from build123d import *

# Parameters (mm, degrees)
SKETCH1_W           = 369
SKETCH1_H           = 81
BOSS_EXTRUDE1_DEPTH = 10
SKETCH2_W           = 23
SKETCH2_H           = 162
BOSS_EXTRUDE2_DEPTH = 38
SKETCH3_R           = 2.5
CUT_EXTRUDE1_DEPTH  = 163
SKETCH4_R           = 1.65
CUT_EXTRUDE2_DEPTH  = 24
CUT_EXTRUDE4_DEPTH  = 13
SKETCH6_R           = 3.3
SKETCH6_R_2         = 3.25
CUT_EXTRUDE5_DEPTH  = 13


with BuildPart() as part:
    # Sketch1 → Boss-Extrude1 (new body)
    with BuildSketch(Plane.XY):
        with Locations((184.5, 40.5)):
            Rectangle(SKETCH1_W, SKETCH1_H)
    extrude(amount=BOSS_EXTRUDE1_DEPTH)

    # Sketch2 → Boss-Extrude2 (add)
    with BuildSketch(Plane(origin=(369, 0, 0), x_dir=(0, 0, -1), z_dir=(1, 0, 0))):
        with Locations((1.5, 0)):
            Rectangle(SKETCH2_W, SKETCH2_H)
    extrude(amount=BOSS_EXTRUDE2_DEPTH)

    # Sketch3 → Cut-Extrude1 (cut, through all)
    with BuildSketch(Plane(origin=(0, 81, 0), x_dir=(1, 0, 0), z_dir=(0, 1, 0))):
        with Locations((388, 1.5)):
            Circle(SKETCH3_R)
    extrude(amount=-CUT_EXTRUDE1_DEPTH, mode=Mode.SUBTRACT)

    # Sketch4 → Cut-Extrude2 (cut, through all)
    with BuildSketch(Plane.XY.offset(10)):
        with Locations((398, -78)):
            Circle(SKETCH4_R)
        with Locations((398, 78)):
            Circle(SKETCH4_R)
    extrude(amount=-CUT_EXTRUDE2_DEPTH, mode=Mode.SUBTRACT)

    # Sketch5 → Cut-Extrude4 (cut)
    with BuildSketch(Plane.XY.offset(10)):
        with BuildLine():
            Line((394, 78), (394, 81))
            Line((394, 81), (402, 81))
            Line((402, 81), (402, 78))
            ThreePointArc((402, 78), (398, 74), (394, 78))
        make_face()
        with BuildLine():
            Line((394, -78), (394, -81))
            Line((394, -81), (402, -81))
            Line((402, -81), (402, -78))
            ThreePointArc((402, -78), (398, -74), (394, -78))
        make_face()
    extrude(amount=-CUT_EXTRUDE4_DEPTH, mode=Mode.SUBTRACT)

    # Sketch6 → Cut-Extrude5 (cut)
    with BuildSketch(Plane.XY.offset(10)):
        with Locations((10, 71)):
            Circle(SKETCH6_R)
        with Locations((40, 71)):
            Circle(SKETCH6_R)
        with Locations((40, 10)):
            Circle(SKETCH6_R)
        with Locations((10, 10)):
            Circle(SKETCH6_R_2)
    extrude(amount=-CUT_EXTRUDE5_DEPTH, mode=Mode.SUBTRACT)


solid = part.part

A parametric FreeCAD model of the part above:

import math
import FreeCAD as App
import Part
import Sketcher

doc = App.newDocument("Part")
body = doc.addObject("PartDesign::Body", "Body")

# Sketch on XY plane
sketch1 = body.newObject("Sketcher::SketchObject", "Sketch")
sketch1.AttachmentSupport = (doc.getObject("XY_Plane"), [""])
sketch1.MapMode = "FlatFace"
sketch1.addGeometry([
    Part.LineSegment(App.Vector(0, 81, 0), App.Vector(0, 0, 0)),
    Part.LineSegment(App.Vector(0, 0, 0), App.Vector(369, 0, 0)),
    Part.LineSegment(App.Vector(369, 0, 0), App.Vector(369, 81, 0)),
    Part.LineSegment(App.Vector(369, 81, 0), App.Vector(0, 81, 0)),
], False)
sketch1.addConstraint([
    Sketcher.Constraint("Coincident", 0, 2, 1, 1),
    Sketcher.Constraint("Coincident", 1, 2, 2, 1),
    Sketcher.Constraint("Coincident", 2, 2, 3, 1),
    Sketcher.Constraint("Coincident", 3, 2, 0, 1),
    Sketcher.Constraint("Vertical", 0),
    Sketcher.Constraint("Horizontal", 1),
    Sketcher.Constraint("Vertical", 2),
    Sketcher.Constraint("Horizontal", 3),
    Sketcher.Constraint("Coincident", 0, 2, -1, 1),
    Sketcher.Constraint("DistanceX", 1, 1, 1, 2, 369.0),
    Sketcher.Constraint("DistanceY", 0, 2, 0, 1, 81.0),
])
pad1 = body.newObject("PartDesign::Pad", "Pad")
pad1.Profile = sketch1
pad1.Length = 10

# Sketch on YZ plane
sketch2 = body.newObject("Sketcher::SketchObject", "Sketch001")
sketch2.AttachmentSupport = (doc.getObject("YZ_Plane"), [""])
sketch2.MapMode = "FlatFace"
sketch2.AttachmentOffset = App.Placement(App.Vector(0, 0, 369), App.Rotation())
sketch2.addGeometry([
    Part.LineSegment(App.Vector(81, 10, 0), App.Vector(-81, 10, 0)),
    Part.LineSegment(App.Vector(-81, 10, 0), App.Vector(-81, -13, 0)),
    Part.LineSegment(App.Vector(-81, -13, 0), App.Vector(81, -13, 0)),
    Part.LineSegment(App.Vector(81, -13, 0), App.Vector(81, 10, 0)),
], False)
sketch2.addConstraint([
    Sketcher.Constraint("Coincident", 0, 2, 1, 1),
    Sketcher.Constraint("Coincident", 1, 2, 2, 1),
    Sketcher.Constraint("Coincident", 2, 2, 3, 1),
    Sketcher.Constraint("Coincident", 3, 2, 0, 1),
    Sketcher.Constraint("Horizontal", 0),
    Sketcher.Constraint("Vertical", 1),
    Sketcher.Constraint("Horizontal", 2),
    Sketcher.Constraint("Vertical", 3),
    Sketcher.Constraint("DistanceX", 0, 2, 0, 1, 162.0),
    Sketcher.Constraint("DistanceY", 1, 2, 1, 1, 23.0),
    Sketcher.Constraint("DistanceX", 0, 2, -1, 1, 81.0),
    Sketcher.Constraint("DistanceY", -1, 1, 0, 2, 10.0),
])
pad2 = body.newObject("PartDesign::Pad", "Pad001")
pad2.Profile = sketch2
pad2.Length = 38

# Sketch on XZ plane
sketch3 = body.newObject("Sketcher::SketchObject", "Sketch002")
sketch3.AttachmentSupport = (doc.getObject("XZ_Plane"), [""])
sketch3.MapMode = "FlatFace"
sketch3.AttachmentOffset = App.Placement(App.Vector(0, 0, -81), App.Rotation())
sketch3.addGeometry(Part.Circle(App.Vector(388, -1.5, 0), App.Vector(0, 0, 1), 2.5), False)
sketch3.addConstraint([
    Sketcher.Constraint("Diameter", 0, 5.0),
    Sketcher.Constraint("DistanceX", -1, 1, 0, 3, 388.0),
    Sketcher.Constraint("DistanceY", 0, 3, -1, 1, 1.5),
])
pocket1 = body.newObject("PartDesign::Pocket", "Pocket")
pocket1.Profile = sketch3
pocket1.Type = "ThroughAll"
pocket1.Reversed = True

# Sketch on XY plane
sketch4 = body.newObject("Sketcher::SketchObject", "Sketch003")
sketch4.AttachmentSupport = (doc.getObject("XY_Plane"), [""])
sketch4.MapMode = "FlatFace"
sketch4.AttachmentOffset = App.Placement(App.Vector(0, 0, 10), App.Rotation())
sketch4.addGeometry([
    Part.Circle(App.Vector(398, -78, 0), App.Vector(0, 0, 1), 1.6),
    Part.Circle(App.Vector(398, 78, 0), App.Vector(0, 0, 1), 1.6),
], False)
sketch4.addConstraint([
    Sketcher.Constraint("Equal", 0, 1),
    Sketcher.Constraint("Symmetric", 0, 3, 1, 3, -1),
    Sketcher.Constraint("Diameter", 0, 3.3),
    Sketcher.Constraint("DistanceX", -1, 1, 0, 3, 398.0),
    Sketcher.Constraint("DistanceY", 0, 3, -1, 1, 78.0),
])
pocket2 = body.newObject("PartDesign::Pocket", "Pocket001")
pocket2.Profile = sketch4
pocket2.Type = "ThroughAll"

# Sketch on XY plane
sketch5 = body.newObject("Sketcher::SketchObject", "Sketch004")
sketch5.AttachmentSupport = (doc.getObject("XY_Plane"), [""])
sketch5.MapMode = "FlatFace"
sketch5.AttachmentOffset = App.Placement(App.Vector(0, 0, 10), App.Rotation())
sketch5.addGeometry([
    Part.LineSegment(App.Vector(394, 81, 0), App.Vector(394, 78, 0)),  # 0
    Part.ArcOfCircle(Part.Circle(App.Vector(398, 78, 0), App.Vector(0, 0, 1), 4), math.radians(180), math.radians(360)),  # 1
    Part.LineSegment(App.Vector(402, 78, 0), App.Vector(402, 81, 0)),  # 2
    Part.LineSegment(App.Vector(402, 81, 0), App.Vector(394, 81, 0)),  # 3
    Part.LineSegment(App.Vector(394, -78, 0), App.Vector(394, -81, 0)),  # 4
    Part.LineSegment(App.Vector(394, -81, 0), App.Vector(402, -81, 0)),  # 5
    Part.LineSegment(App.Vector(402, -81, 0), App.Vector(402, -78, 0)),  # 6
    Part.ArcOfCircle(Part.Circle(App.Vector(398, -78, 0), App.Vector(0, 0, 1), 4), math.radians(0), math.radians(180)),  # 7
], False)
sketch5.addConstraint([
    Sketcher.Constraint("Tangent", 0, 2, 1, 1),
    Sketcher.Constraint("Tangent", 1, 2, 2, 1),
    Sketcher.Constraint("Coincident", 2, 2, 3, 1),
    Sketcher.Constraint("Coincident", 3, 2, 0, 1),
    Sketcher.Constraint("Coincident", 4, 2, 5, 1),
    Sketcher.Constraint("Coincident", 5, 2, 6, 1),
    Sketcher.Constraint("Tangent", 6, 2, 7, 1),
    Sketcher.Constraint("Tangent", 7, 2, 4, 1),
    Sketcher.Constraint("Vertical", 0),
    Sketcher.Constraint("Vertical", 2),
    Sketcher.Constraint("Horizontal", 3),
    Sketcher.Constraint("Vertical", 4),
    Sketcher.Constraint("Horizontal", 5),
    Sketcher.Constraint("Vertical", 6),
    Sketcher.Constraint("Equal", 1, 7),
    Sketcher.Constraint("Symmetric", 1, 3, 7, 3, -1),
    Sketcher.Constraint("Equal", 2, 4),
    Sketcher.Constraint("Radius", 1, 4.0),
    Sketcher.Constraint("DistanceY", 0, 2, 0, 1, 3.0),
    Sketcher.Constraint("DistanceX", -1, 1, 1, 3, 398.0),
    Sketcher.Constraint("DistanceY", -1, 1, 1, 3, 78.0),
])
pocket3 = body.newObject("PartDesign::Pocket", "Pocket002")
pocket3.Profile = sketch5
pocket3.Length = 13

# Sketch on XY plane
sketch6 = body.newObject("Sketcher::SketchObject", "Sketch005")
sketch6.AttachmentSupport = (doc.getObject("XY_Plane"), [""])
sketch6.MapMode = "FlatFace"
sketch6.AttachmentOffset = App.Placement(App.Vector(0, 0, 10), App.Rotation())
sketch6.addGeometry([
    Part.Circle(App.Vector(10, 71, 0), App.Vector(0, 0, 1), 3.3),
    Part.Circle(App.Vector(40, 71, 0), App.Vector(0, 0, 1), 3.3),
    Part.Circle(App.Vector(40, 10, 0), App.Vector(0, 0, 1), 3.3),
    Part.Circle(App.Vector(10, 10, 0), App.Vector(0, 0, 1), 3.2),
], False)
sketch6.addConstraint([
    Sketcher.Constraint("Equal", 0, 1),
    Sketcher.Constraint("Equal", 1, 2),
    Sketcher.Constraint("Horizontal", 0, 3, 1, 3),
    Sketcher.Constraint("Horizontal", 2, 3, 3, 3),
    Sketcher.Constraint("Vertical", 1, 3, 2, 3),
    Sketcher.Constraint("Vertical", 0, 3, 3, 3),
    Sketcher.Constraint("Diameter", 0, 6.6),
    Sketcher.Constraint("Diameter", 3, 6.5),
    Sketcher.Constraint("DistanceX", -1, 1, 0, 3, 10.0),
    Sketcher.Constraint("DistanceY", -1, 1, 0, 3, 71.0),
    Sketcher.Constraint("DistanceX", -1, 1, 1, 3, 40.0),
    Sketcher.Constraint("DistanceY", -1, 1, 2, 3, 10.0),
])
pocket4 = body.newObject("PartDesign::Pocket", "Pocket003")
pocket4.Profile = sketch6
pocket4.Length = 13

doc.recompute()
